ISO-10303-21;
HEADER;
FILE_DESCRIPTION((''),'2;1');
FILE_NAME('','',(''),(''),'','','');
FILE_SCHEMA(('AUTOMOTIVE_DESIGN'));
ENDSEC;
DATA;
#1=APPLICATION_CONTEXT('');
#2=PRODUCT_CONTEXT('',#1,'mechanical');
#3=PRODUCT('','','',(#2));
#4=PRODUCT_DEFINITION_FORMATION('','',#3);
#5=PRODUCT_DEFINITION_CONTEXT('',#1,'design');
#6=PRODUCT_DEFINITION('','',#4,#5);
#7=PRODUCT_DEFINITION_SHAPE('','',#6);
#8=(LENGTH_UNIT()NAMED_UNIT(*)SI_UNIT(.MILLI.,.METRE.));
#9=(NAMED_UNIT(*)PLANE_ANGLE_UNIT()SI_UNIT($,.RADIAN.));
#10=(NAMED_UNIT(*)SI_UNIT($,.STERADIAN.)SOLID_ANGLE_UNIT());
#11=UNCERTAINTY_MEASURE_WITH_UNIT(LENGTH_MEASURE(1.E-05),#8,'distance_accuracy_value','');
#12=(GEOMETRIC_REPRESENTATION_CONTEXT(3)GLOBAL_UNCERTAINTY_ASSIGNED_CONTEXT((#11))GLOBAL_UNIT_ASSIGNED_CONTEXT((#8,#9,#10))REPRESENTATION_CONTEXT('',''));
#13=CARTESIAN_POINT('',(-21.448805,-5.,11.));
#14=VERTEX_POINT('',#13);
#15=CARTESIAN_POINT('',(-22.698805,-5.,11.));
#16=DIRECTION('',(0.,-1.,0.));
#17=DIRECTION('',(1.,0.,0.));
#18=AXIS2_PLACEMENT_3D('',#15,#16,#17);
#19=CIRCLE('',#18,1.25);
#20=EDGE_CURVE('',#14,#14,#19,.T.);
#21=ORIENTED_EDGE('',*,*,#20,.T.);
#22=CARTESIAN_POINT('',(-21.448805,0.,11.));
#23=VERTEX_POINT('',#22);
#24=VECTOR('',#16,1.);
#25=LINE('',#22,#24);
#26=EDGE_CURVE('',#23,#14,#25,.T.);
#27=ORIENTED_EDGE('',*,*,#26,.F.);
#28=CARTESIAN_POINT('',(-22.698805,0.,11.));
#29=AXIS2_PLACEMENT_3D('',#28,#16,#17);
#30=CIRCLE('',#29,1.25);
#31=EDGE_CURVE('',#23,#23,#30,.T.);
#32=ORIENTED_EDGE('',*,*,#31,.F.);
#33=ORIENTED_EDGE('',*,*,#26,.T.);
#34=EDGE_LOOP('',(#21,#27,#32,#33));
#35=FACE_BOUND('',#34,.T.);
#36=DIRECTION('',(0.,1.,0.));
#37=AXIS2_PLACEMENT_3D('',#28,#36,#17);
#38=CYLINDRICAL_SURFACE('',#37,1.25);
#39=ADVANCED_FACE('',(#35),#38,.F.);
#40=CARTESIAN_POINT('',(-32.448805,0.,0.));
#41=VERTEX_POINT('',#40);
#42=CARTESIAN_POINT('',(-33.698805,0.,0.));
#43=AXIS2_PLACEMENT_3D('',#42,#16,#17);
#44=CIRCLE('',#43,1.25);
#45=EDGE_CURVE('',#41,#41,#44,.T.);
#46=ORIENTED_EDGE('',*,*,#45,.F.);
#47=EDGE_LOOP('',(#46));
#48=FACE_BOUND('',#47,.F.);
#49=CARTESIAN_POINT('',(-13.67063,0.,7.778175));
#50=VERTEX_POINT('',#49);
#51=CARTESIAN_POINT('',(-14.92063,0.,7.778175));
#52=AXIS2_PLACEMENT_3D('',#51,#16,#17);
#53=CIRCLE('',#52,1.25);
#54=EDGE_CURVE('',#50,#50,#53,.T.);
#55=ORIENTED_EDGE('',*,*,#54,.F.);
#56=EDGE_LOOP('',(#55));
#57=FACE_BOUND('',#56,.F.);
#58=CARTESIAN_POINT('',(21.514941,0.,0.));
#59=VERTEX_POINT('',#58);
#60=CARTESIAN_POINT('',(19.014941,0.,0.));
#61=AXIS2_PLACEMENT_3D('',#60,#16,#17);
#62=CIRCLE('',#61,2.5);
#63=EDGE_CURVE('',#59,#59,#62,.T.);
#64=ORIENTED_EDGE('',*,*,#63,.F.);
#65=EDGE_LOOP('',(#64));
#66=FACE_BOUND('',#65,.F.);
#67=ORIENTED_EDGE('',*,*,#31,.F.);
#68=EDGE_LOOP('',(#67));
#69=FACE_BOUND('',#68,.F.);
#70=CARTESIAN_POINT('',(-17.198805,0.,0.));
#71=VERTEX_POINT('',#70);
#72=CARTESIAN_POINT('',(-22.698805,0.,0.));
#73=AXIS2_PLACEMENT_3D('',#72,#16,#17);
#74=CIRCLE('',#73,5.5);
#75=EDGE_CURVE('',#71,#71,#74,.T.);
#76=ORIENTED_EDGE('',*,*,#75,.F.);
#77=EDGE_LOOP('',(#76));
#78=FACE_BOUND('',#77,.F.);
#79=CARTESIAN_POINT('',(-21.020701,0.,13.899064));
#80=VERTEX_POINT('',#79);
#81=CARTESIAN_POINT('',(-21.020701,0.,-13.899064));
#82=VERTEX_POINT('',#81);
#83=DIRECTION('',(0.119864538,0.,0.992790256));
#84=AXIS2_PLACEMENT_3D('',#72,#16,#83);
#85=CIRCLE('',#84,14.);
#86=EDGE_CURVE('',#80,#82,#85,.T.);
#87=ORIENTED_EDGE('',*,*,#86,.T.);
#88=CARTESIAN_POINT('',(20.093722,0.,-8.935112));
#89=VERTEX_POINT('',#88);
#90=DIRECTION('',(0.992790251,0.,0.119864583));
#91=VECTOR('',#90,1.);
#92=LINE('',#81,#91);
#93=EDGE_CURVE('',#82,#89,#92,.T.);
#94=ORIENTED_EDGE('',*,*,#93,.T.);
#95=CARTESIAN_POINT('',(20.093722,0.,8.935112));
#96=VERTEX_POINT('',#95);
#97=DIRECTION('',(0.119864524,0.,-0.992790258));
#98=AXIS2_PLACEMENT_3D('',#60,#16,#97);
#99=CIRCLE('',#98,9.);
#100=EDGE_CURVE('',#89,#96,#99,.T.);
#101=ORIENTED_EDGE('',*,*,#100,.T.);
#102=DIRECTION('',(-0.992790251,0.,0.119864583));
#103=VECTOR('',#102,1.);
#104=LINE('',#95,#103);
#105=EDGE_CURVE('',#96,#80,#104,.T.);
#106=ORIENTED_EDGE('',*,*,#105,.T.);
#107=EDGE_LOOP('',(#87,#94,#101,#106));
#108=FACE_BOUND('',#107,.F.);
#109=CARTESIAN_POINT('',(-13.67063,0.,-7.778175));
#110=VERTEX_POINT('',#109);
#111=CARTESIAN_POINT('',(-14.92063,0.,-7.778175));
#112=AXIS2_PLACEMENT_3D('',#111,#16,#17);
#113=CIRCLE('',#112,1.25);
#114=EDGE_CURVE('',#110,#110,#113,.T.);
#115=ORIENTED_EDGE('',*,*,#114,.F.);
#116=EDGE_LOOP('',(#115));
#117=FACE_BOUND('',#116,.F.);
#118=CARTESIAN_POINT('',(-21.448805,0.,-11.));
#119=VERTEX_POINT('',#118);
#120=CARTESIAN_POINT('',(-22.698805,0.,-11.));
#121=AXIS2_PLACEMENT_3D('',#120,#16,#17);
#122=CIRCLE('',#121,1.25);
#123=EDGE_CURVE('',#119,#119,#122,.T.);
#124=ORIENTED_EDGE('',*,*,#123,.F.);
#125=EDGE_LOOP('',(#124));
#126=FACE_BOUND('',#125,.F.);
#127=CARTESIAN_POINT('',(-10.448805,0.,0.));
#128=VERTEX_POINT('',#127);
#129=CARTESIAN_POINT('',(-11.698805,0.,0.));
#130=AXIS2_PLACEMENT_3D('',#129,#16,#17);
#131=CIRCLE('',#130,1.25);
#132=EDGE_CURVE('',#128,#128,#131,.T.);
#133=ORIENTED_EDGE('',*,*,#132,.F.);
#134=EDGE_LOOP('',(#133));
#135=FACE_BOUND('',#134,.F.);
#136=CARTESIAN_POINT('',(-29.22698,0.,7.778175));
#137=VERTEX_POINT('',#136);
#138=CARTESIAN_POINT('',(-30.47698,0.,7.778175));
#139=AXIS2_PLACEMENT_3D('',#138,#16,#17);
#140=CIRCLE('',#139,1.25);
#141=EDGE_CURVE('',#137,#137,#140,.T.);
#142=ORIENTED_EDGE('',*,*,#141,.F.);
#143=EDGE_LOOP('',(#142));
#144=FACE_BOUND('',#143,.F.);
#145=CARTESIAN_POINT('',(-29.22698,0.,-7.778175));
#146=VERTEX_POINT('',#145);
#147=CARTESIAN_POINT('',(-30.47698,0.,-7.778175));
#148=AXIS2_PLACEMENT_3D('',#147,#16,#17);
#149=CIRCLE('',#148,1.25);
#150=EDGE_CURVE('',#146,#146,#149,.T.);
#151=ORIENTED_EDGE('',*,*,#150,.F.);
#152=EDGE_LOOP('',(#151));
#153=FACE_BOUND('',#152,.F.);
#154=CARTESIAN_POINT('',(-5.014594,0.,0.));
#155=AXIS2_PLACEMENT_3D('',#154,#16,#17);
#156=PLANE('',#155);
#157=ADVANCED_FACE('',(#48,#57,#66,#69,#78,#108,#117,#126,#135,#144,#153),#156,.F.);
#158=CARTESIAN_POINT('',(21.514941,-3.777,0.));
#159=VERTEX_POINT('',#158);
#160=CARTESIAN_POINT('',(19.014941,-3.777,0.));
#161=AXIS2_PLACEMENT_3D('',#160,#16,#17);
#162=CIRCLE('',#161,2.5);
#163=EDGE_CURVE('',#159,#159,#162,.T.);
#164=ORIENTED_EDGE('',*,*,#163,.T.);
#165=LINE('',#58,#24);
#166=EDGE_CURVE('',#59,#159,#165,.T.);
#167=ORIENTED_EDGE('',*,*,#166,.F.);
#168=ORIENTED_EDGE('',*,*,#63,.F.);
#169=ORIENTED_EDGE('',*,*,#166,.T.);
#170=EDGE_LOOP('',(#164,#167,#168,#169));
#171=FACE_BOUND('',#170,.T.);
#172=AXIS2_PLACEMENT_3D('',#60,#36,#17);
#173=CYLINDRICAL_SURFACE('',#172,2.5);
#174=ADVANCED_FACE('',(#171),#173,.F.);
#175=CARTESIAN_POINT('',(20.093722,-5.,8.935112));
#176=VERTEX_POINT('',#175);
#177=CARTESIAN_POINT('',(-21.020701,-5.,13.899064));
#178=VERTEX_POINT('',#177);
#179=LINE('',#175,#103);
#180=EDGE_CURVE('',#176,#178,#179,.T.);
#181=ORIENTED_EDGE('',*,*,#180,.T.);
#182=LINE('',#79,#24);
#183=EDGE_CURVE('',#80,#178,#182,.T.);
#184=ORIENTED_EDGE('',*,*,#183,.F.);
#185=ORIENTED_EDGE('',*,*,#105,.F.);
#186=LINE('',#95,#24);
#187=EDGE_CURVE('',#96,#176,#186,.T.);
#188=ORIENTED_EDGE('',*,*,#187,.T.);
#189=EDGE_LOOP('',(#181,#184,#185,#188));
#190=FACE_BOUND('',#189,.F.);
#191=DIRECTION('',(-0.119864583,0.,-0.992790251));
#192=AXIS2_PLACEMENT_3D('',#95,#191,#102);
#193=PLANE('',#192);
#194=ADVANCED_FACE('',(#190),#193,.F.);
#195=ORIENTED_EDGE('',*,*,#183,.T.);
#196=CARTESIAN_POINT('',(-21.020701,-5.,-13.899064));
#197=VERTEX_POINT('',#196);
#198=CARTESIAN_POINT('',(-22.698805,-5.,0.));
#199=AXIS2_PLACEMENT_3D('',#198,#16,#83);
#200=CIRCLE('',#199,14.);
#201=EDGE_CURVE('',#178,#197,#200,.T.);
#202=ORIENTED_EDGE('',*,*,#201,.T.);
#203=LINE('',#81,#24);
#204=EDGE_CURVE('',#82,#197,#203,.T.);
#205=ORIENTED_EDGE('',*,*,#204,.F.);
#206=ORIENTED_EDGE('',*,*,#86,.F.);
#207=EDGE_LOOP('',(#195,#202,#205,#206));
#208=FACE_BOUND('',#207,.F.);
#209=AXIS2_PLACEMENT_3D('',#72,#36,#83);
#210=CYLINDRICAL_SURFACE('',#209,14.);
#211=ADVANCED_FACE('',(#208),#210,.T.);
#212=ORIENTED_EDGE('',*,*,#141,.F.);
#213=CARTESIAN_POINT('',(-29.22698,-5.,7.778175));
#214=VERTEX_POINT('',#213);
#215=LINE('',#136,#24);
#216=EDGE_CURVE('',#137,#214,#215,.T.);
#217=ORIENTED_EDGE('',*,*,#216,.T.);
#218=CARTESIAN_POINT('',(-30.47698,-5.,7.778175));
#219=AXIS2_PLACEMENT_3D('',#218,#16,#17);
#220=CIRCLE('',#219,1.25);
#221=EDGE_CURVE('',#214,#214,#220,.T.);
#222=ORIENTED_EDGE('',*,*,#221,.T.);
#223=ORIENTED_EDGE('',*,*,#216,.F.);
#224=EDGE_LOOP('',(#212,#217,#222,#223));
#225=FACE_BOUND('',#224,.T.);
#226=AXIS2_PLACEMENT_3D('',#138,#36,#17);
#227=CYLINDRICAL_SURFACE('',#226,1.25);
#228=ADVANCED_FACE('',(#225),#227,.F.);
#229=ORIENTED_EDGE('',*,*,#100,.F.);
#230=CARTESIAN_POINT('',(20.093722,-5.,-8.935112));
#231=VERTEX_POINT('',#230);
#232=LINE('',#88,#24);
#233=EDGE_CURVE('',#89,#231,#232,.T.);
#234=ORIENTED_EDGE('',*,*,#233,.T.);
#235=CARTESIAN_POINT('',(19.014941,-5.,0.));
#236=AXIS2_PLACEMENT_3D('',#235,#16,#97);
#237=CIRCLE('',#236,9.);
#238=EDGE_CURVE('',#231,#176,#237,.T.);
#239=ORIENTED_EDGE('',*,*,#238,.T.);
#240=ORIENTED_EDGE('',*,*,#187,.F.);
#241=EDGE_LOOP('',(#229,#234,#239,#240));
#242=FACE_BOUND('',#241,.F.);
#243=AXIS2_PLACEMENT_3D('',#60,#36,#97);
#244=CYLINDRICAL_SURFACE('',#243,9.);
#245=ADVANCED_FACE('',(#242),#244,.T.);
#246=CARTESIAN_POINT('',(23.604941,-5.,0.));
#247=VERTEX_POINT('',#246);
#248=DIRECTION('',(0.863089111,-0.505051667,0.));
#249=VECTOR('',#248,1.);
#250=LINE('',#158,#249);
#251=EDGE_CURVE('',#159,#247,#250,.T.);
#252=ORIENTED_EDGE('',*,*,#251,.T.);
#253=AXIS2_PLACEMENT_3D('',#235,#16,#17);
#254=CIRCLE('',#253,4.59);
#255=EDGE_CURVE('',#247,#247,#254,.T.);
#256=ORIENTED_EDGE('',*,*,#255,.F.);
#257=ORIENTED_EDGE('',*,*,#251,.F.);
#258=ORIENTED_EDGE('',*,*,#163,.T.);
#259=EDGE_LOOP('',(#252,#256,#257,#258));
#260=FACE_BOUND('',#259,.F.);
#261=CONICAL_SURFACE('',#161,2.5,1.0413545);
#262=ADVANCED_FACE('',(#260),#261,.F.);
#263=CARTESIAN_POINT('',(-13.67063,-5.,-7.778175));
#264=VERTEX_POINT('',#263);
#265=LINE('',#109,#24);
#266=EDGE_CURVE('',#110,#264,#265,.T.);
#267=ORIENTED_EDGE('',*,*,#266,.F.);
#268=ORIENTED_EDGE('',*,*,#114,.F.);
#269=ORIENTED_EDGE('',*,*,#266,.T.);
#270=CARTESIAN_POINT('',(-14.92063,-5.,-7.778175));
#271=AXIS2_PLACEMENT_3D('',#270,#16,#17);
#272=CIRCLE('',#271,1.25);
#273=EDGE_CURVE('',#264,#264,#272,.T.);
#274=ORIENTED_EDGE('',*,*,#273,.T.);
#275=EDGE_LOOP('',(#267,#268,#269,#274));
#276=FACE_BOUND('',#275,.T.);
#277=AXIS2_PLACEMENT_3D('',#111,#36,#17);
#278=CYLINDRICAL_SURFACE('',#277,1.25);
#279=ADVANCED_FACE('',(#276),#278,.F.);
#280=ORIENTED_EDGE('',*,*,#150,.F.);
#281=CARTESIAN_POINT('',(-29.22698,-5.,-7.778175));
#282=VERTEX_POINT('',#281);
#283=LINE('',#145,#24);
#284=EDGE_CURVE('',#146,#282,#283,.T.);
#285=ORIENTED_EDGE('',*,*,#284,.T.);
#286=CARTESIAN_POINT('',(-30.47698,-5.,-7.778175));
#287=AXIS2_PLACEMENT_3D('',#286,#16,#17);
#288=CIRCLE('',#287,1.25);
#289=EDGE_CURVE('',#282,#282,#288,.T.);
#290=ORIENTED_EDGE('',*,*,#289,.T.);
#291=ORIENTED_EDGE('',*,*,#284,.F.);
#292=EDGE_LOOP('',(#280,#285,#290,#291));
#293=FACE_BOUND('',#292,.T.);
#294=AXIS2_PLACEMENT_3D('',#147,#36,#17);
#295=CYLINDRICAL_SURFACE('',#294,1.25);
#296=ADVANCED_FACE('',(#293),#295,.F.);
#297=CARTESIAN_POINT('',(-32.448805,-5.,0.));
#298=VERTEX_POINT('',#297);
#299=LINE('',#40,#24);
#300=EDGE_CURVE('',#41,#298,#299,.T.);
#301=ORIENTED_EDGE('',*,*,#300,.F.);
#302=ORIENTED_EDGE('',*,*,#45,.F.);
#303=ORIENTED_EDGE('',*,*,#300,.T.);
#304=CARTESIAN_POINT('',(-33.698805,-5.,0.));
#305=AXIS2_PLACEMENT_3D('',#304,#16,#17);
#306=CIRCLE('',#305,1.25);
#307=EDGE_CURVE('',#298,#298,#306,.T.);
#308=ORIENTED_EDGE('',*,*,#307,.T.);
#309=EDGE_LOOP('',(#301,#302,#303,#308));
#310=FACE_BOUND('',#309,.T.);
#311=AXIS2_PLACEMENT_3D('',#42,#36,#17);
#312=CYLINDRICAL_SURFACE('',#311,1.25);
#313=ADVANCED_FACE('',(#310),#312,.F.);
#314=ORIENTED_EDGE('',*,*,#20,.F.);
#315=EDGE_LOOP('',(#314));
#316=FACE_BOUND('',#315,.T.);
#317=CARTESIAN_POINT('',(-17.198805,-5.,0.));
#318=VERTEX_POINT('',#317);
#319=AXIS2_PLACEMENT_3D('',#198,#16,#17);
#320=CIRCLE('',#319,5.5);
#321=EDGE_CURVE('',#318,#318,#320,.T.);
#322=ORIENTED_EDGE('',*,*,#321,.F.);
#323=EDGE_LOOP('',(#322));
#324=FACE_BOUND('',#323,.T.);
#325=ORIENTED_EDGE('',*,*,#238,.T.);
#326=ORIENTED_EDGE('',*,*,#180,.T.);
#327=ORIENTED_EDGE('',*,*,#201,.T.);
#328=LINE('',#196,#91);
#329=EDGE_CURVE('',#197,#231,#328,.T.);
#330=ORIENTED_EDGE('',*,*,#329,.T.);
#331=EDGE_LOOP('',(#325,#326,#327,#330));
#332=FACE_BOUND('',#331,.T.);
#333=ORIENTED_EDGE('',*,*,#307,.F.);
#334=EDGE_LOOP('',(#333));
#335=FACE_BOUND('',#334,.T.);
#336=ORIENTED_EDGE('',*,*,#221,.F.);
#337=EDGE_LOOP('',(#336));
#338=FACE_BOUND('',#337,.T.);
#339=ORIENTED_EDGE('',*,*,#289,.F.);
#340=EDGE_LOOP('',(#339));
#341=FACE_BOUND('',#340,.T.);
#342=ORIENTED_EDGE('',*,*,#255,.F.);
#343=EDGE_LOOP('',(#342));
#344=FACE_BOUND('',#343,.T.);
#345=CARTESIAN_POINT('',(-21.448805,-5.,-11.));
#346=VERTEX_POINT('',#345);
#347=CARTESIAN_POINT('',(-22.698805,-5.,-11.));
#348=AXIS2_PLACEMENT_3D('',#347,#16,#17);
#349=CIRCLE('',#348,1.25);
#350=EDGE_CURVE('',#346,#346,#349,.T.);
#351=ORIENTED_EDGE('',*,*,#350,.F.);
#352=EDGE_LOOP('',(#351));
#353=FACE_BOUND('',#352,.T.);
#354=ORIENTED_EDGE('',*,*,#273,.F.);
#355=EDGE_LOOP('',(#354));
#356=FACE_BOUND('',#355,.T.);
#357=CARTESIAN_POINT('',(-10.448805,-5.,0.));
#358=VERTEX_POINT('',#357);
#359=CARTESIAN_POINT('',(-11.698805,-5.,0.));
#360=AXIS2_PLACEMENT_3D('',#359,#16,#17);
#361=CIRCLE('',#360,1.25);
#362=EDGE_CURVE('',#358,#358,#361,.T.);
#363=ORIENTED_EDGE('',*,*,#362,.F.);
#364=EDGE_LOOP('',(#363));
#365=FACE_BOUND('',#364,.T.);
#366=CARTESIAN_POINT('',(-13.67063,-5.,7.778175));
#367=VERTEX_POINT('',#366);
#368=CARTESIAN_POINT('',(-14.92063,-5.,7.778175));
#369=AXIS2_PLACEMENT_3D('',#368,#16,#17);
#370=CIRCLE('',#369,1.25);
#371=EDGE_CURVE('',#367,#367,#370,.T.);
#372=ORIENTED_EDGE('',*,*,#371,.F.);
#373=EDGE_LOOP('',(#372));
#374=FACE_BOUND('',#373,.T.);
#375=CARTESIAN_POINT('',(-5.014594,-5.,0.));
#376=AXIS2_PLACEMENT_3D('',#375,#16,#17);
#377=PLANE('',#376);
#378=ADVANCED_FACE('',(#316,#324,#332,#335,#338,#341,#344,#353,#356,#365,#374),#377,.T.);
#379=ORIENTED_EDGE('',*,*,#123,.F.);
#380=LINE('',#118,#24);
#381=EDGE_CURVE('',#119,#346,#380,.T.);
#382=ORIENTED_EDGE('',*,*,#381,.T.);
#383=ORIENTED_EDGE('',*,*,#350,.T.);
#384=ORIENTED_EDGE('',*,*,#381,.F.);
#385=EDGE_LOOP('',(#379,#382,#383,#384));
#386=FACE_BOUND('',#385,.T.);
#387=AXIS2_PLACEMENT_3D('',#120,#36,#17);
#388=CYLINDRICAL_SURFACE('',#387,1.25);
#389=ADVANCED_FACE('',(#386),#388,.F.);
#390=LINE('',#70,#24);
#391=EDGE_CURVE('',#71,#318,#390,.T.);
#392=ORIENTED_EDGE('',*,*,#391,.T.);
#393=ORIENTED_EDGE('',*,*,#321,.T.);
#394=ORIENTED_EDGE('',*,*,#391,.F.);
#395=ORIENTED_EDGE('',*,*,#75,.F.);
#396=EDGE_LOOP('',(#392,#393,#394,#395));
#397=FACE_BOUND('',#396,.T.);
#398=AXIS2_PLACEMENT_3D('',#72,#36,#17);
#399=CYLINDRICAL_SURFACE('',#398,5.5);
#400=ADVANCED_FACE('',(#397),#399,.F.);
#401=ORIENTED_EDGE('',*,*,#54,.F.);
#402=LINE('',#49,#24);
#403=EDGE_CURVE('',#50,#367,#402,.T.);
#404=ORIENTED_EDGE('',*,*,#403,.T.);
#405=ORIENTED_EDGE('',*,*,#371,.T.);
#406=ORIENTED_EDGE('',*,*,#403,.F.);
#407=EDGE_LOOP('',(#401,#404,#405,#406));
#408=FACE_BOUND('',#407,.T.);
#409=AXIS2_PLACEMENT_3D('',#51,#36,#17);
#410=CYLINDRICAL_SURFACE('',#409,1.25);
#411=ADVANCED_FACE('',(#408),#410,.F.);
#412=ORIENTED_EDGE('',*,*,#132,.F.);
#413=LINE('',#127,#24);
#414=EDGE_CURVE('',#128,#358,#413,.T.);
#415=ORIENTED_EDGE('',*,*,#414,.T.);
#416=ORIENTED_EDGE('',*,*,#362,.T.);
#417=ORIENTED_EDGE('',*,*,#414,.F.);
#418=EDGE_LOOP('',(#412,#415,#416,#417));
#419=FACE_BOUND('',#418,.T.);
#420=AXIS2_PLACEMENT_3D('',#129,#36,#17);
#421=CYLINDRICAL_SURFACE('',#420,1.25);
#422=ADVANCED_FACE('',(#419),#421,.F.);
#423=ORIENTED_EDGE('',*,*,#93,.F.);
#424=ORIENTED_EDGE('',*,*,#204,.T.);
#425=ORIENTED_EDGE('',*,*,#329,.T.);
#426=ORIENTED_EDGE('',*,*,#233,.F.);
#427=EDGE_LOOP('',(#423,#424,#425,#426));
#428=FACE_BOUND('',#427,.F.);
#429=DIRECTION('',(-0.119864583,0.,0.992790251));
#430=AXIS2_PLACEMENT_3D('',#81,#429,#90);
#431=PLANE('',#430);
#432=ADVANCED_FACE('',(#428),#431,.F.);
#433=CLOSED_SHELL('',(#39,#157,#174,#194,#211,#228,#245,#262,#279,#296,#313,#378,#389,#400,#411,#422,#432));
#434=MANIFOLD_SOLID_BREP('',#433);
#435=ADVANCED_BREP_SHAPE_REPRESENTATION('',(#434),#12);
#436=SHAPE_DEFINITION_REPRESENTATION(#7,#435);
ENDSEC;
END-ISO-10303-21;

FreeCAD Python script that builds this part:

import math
import FreeCAD as App
import Part
import Sketcher

V = App.Vector
Q = App.Units.Quantity


def edges_at(feature, points):
    """Names of the edges that pass closest to the given points."""
    edges = feature.Shape.Edges
    near = lambda p: min(range(len(edges)), key=lambda i: edges[i].distToShape(Part.Vertex(*p))[0])
    return sorted({f"Edge{near(p) + 1}" for p in points})

doc = App.newDocument("Part")
body = doc.addObject("PartDesign::Body", "Body")

sketch1 = body.newObject("Sketcher::SketchObject", "Sketch")
sketch1.AttachmentSupport = (doc.getObject("XZ_Plane"), [""])
sketch1.MapMode = "FlatFace"
sketch1.addGeometry([
    Part.LineSegment(V(20.093722, 8.935112, 0), V(-21.020701, 13.899064, 0)),
    Part.ArcOfCircle(Part.Circle(V(-22.698805, 0, 0), V(0, 0, 1), 14), math.radians(83.115715), math.radians(276.884285)),
    Part.LineSegment(V(-21.020701, -13.899064, 0), V(20.093722, -8.935112, 0)),
    Part.ArcOfCircle(Part.Circle(V(19.014941, 0, 0), V(0, 0, 1), 9), math.radians(-83.115716), math.radians(83.115716)),
    Part.Circle(V(-22.698805, -11, 0), V(0, 0, 1), 1.25),
    Part.Circle(V(-30.47698, -7.778175, 0), V(0, 0, 1), 1.25),
    Part.Circle(V(-14.92063, -7.778175, 0), V(0, 0, 1), 1.25),
    Part.Circle(V(-33.698805, 0, 0), V(0, 0, 1), 1.25),
    Part.Circle(V(-22.698805, 0, 0), V(0, 0, 1), 5.5),
    Part.Circle(V(-11.698805, 0, 0), V(0, 0, 1), 1.25),
    Part.Circle(V(19.014941, 0, 0), V(0, 0, 1), 2.5),
    Part.Circle(V(-30.47698, 7.778175, 0), V(0, 0, 1), 1.25),
    Part.Circle(V(-22.698805, 11, 0), V(0, 0, 1), 1.25),
    Part.Circle(V(-14.92063, 7.778175, 0), V(0, 0, 1), 1.25),
], False)
sketch1.addConstraint([
    Sketcher.Constraint("Tangent", 0, 2, 1, 1),
    Sketcher.Constraint("Tangent", 1, 2, 2, 1),
    Sketcher.Constraint("Tangent", 2, 2, 3, 1),
    Sketcher.Constraint("Tangent", 3, 2, 0, 1),
    Sketcher.Constraint("Coincident", 8, 3, 1, 3),
    Sketcher.Constraint("Coincident", 10, 3, 3, 3),
    Sketcher.Constraint("Equal", 4, 5),
    Sketcher.Constraint("Equal", 5, 6),
    Sketcher.Constraint("Equal", 6, 7),
    Sketcher.Constraint("Equal", 7, 9),
    Sketcher.Constraint("Equal", 9, 11),
    Sketcher.Constraint("Equal", 11, 12),
    Sketcher.Constraint("Equal", 12, 13),
    Sketcher.Constraint("Symmetric", 5, 3, 11, 3, -1),
    Sketcher.Constraint("Symmetric", 4, 3, 12, 3, -1),
    Sketcher.Constraint("Symmetric", 6, 3, 13, 3, -1),
    Sketcher.Constraint("Symmetric", 0, 2, 1, 2, -1),
    Sketcher.Constraint("PointOnObject", 7, 3, -1),
    Sketcher.Constraint("PointOnObject", 9, 3, -1),
    Sketcher.Constraint("Horizontal", 5, 3, 6, 3),
    Sketcher.Constraint("Vertical", 1, 3, 4, 3),
    Sketcher.Constraint("Diameter", 8, Q("11 mm")),
    Sketcher.Constraint("Diameter", 10, Q("5 mm")),
    Sketcher.Constraint("Radius", 1, Q("14 mm")),
    Sketcher.Constraint("Radius", 3, Q("9 mm")),
    Sketcher.Constraint("Diameter", 4, Q("2.5 mm")),
    Sketcher.Constraint("DistanceY", 4, 3, -1, 1, Q("11 mm")),
    Sketcher.Constraint("DistanceX", 7, 3, 1, 3, Q("11 mm")),
    Sketcher.Constraint("DistanceX", 1, 3, 9, 3, Q("11 mm")),
    Sketcher.Constraint("Distance", 0, Q("41.413 mm")),
    Sketcher.Constraint("DistanceX", 0, 2, -1, 1, Q("21.020701 mm")),
    Sketcher.Constraint("DistanceX", 5, 3, -1, 1, Q("30.47698 mm")),
    Sketcher.Constraint("DistanceX", 6, 3, -1, 1, Q("14.92063 mm")),
    Sketcher.Constraint("DistanceY", 5, 3, 11, 3, Q("15.55635 mm")),
])
pad1 = body.newObject("PartDesign::Pad", "Pad")
pad1.Profile = sketch1
pad1.Length = 5
doc.recompute()

chamfer = body.newObject("PartDesign::Chamfer", "Chamfer")
chamfer.Base = (pad1, edges_at(pad1, [(16.515, -5, 0)]))
chamfer.ChamferType = "Two distances"
chamfer.Size = 1.223
chamfer.Size2 = 2.09

doc.recompute()
